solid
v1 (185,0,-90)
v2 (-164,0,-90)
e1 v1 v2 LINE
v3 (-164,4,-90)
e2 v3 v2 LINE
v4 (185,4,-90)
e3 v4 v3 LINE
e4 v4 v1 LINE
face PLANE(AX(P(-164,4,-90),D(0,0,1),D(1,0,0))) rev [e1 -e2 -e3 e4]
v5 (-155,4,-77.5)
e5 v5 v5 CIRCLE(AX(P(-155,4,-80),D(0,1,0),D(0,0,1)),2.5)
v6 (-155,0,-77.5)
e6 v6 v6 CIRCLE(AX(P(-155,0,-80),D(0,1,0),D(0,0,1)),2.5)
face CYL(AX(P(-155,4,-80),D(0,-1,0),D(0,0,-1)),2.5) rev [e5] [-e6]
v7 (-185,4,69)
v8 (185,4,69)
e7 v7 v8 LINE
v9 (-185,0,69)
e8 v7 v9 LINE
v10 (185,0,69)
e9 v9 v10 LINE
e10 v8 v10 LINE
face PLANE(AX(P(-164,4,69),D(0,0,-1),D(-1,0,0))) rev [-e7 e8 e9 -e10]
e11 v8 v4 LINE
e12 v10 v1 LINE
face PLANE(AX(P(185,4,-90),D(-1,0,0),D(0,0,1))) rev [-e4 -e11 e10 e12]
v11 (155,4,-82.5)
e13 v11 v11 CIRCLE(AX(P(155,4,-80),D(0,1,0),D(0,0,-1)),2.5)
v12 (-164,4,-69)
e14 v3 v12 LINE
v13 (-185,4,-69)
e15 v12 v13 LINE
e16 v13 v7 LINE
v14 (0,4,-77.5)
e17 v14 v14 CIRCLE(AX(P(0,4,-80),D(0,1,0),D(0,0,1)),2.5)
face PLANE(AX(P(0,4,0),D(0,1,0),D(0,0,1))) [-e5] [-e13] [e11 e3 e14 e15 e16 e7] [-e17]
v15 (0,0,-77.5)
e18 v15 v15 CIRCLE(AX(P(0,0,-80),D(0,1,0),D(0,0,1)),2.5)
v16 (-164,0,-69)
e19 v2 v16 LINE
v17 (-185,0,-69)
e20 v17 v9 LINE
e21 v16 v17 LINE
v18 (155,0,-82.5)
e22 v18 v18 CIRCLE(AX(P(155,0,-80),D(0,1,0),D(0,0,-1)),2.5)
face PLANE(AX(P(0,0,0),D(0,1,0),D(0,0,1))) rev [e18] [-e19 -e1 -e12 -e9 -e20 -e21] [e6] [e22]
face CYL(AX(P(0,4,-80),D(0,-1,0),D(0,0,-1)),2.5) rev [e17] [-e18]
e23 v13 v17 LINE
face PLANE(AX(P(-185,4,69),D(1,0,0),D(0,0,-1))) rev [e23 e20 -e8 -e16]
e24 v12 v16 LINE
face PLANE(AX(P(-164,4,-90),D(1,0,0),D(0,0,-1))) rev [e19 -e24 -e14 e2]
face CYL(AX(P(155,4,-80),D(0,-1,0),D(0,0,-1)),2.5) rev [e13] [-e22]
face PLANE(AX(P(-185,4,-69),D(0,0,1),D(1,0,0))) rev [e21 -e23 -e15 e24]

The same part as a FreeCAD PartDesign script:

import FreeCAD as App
import Part
import Sketcher

V = App.Vector
Q = App.Units.Quantity


def add_polygon(sketch, points):
    """Adds a closed chain of lines whose ends are joined by coincident constraints."""
    first, n = sketch.GeometryCount, len(points)
    for a, b in zip(points, points[1:] + points[:1]):
        sketch.addGeometry(Part.LineSegment(App.Vector(*a, 0), App.Vector(*b, 0)), False)
    for i in range(n):
        sketch.addConstraint(Sketcher.Constraint("Coincident", first + i, 2, first + (i + 1) % n, 1))

doc = App.newDocument("Part")
body = doc.addObject("PartDesign::Body", "Body")

sketch1 = doc.addObject("Sketcher::SketchObject", "Sketch")
body.addObject(sketch1)
sketch1.AttachmentSupport = (doc.XZ_Plane, [""])
sketch1.MapMode = "FlatFace"
add_polygon(sketch1, [(-185, -69), (-185, 69), (185, 69), (185, -90), (-164, -90), (-164, -69)])
sketch1.addGeometry(Part.Circle(V(155, -80, 0), V(0, 0, 1), 2.5), False)
sketch1.addGeometry(Part.Circle(V(0, -80, 0), V(0, 0, 1), 2.5), False)
sketch1.addGeometry(Part.Circle(V(-155, -80, 0), V(0, 0, 1), 2.5), False)
sketch1.addConstraint([
    Sketcher.Constraint("Vertical", 0),
    Sketcher.Constraint("Horizontal", 1),
    Sketcher.Constraint("Vertical", 2),
    Sketcher.Constraint("Horizontal", 3),
    Sketcher.Constraint("Vertical", 4),
    Sketcher.Constraint("Horizontal", 5),
    Sketcher.Constraint("Equal", 6, 7),
    Sketcher.Constraint("Equal", 7, 8),
    Sketcher.Constraint("Symmetric", 1, 2, 5, 2, -1, 1),
    Sketcher.Constraint("Symmetric", 6, 3, 8, 3, -2),
    Sketcher.Constraint("PointOnObject", 7, 3, -2),
    Sketcher.Constraint("Horizontal", 6, 3, 7, 3),
    Sketcher.Constraint("Equal", 5, 4),
    Sketcher.Constraint("Diameter", 6, Q("5 mm")),
    Sketcher.Constraint("DistanceX", 1, 1, 1, 2, Q("370 mm")),
    Sketcher.Constraint("DistanceX", 3, 2, 3, 1, Q("349 mm")),
    Sketcher.Constraint("DistanceY", 0, 1, 0, 2, Q("138 mm")),
    Sketcher.Constraint("DistanceX", -1, 1, 6, 3, Q("155 mm")),
    Sketcher.Constraint("DistanceY", 6, 3, -1, 1, Q("80 mm")),
])
pad1 = doc.addObject("PartDesign::Pad", "Pad")
body.addObject(pad1)
pad1.Profile = sketch1
pad1.Length = 4
pad1.Reversed = True

doc.recompute()
